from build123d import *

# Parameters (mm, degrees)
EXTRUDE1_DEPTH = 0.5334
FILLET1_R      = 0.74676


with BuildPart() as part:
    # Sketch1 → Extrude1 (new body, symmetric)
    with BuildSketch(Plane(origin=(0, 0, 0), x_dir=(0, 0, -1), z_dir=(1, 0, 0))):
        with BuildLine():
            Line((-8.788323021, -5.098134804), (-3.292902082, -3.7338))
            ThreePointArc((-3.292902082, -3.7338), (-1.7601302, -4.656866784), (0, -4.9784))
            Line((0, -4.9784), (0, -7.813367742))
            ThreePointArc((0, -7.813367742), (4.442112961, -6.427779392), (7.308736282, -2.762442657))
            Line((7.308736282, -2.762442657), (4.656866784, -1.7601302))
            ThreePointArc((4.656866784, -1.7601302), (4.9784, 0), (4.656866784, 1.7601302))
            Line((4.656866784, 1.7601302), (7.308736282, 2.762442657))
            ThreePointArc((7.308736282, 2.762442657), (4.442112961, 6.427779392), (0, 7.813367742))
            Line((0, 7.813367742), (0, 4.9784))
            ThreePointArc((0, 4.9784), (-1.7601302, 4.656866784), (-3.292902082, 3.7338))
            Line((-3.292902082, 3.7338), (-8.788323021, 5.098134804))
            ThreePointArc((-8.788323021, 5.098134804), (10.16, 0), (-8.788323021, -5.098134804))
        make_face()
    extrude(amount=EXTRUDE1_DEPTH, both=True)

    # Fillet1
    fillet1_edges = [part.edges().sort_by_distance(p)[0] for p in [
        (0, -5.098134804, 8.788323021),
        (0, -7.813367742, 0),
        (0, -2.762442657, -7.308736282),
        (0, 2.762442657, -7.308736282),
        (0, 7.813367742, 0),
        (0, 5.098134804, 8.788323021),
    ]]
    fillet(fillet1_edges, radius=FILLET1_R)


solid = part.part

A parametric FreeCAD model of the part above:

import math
import FreeCAD as App
import Part
import Sketcher

V = App.Vector
Q = App.Units.Quantity


def edges_at(feature, points):
    """Names of the edges that pass closest to the given points."""
    edges = feature.Shape.Edges
    near = lambda p: min(range(len(edges)), key=lambda i: edges[i].distToShape(Part.Vertex(*p))[0])
    return sorted({f"Edge{near(p) + 1}" for p in points})

doc = App.newDocument("Part")
body = doc.addObject("PartDesign::Body", "Body")

# Sketch on YZ plane
sketch1 = doc.addObject("Sketcher::SketchObject", "Sketch")
body.addObject(sketch1)
sketch1.AttachmentSupport = (doc.YZ_Plane, [""])
sketch1.MapMode = "FlatFace"
sketch1.addGeometry([
    Part.LineSegment(V(-3.7, 3.3, 0), V(-5.1, 8.8, 0)),  # 0
    Part.ArcOfCircle(Part.Circle(V(0, 0, 0), V(0, 0, 1), 10.2), math.radians(120), math.radians(420)),  # 1
    Part.LineSegment(V(5.1, 8.8, 0), V(3.7, 3.3, 0)),  # 2
    Part.ArcOfCircle(Part.Circle(V(0, 0, 0), V(0, 0, 1), 5), math.radians(0), math.radians(41)),  # 3
    Part.LineSegment(V(5, 0, 0), V(7.8, 0, 0)),  # 4
    Part.ArcOfCircle(Part.Circle(V(0, 0, 0), V(0, 0, 1), 7.8), math.radians(-69), math.radians(0)),  # 5
    Part.LineSegment(V(2.8, -7.3, 0), V(1.8, -4.7, 0)),  # 6
    Part.ArcOfCircle(Part.Circle(V(0, 0, 0), V(0, 0, 1), 5), math.radians(-111), math.radians(-69)),  # 7
    Part.LineSegment(V(-1.8, -4.7, 0), V(-2.8, -7.3, 0)),  # 8
    Part.ArcOfCircle(Part.Circle(V(0, 0, 0), V(0, 0, 1), 7.8), math.radians(180), math.radians(249)),  # 9
    Part.LineSegment(V(-7.8, 0, 0), V(-5, 0, 0)),  # 10
    Part.ArcOfCircle(Part.Circle(V(0, 0, 0), V(0, 0, 1), 5), math.radians(139), math.radians(180)),  # 11
], False)
sketch1.addConstraint([
    Sketcher.Constraint("Coincident", 0, 2, 1, 1),
    Sketcher.Constraint("Coincident", 1, 2, 2, 1),
    Sketcher.Constraint("Coincident", 2, 2, 3, 2),
    Sketcher.Constraint("Coincident", 3, 1, 4, 1),
    Sketcher.Constraint("Coincident", 4, 2, 5, 2),
    Sketcher.Constraint("Coincident", 5, 1, 6, 1),
    Sketcher.Constraint("Coincident", 6, 2, 7, 2),
    Sketcher.Constraint("Coincident", 7, 1, 8, 1),
    Sketcher.Constraint("Coincident", 8, 2, 9, 2),
    Sketcher.Constraint("Coincident", 9, 1, 10, 1),
    Sketcher.Constraint("Coincident", 10, 2, 11, 2),
    Sketcher.Constraint("Coincident", 11, 1, 0, 1),
    Sketcher.Constraint("Horizontal", 4),
    Sketcher.Constraint("Horizontal", 10),
    Sketcher.Constraint("Coincident", 1, 3, -1, 1),
    Sketcher.Constraint("Coincident", 3, 3, -1, 1),
    Sketcher.Constraint("Coincident", 5, 3, -1, 1),
    Sketcher.Constraint("Coincident", 7, 3, -1, 1),
    Sketcher.Constraint("Coincident", 9, 3, -1, 1),
    Sketcher.Constraint("Coincident", 11, 3, -1, 1),
    Sketcher.Constraint("Equal", 3, 7),
    Sketcher.Constraint("Equal", 5, 9),
    Sketcher.Constraint("Equal", 7, 11),
    Sketcher.Constraint("PointOnObject", 3, 1, -1),
    Sketcher.Constraint("PointOnObject", 9, 1, -1),
    Sketcher.Constraint("Horizontal", 0, 2, 1, 2),
    Sketcher.Constraint("Horizontal", 6, 2, 7, 1),
    Sketcher.Constraint("Horizontal", 5, 1, 8, 2),
    Sketcher.Constraint("Horizontal", 2, 2, 11, 1),
    Sketcher.Constraint("Radius", 1, Q("0.4 in")),
    Sketcher.Constraint("Radius", 3, Q("0.196 in")),
    Sketcher.Constraint("DistanceX", -1, 1, 2, 2, Q("0.147 in")),
    Sketcher.Constraint("Radius", 5, Q("7.813368 mm")),
    Sketcher.Constraint("Distance", 0, Q("5.662249 mm")),
    Sketcher.Constraint("DistanceX", -1, 1, 6, 2, Q("1.76013 mm")),
    Sketcher.Constraint("DistanceY", 5, 1, 6, 2, Q("2.651869 mm")),
])
pad1 = doc.addObject("PartDesign::Pad", "Pad")
body.addObject(pad1)
pad1.Profile = sketch1
pad1.Length = Q("0.042 in")
pad1.Midplane = True
doc.recompute()

fillet = doc.addObject("PartDesign::Fillet", "Fillet")
body.addObject(fillet)
fillet.Base = (pad1, edges_at(pad1, [
    (0, -5.098, 8.788),
    (0, -7.813, 0),
    (0, -2.762, -7.309),
    (0, 2.762, -7.309),
    (0, 7.813, 0),
    (0, 5.098, 8.788),
]))
fillet.Radius = Q("0.0294 in")

doc.recompute()
